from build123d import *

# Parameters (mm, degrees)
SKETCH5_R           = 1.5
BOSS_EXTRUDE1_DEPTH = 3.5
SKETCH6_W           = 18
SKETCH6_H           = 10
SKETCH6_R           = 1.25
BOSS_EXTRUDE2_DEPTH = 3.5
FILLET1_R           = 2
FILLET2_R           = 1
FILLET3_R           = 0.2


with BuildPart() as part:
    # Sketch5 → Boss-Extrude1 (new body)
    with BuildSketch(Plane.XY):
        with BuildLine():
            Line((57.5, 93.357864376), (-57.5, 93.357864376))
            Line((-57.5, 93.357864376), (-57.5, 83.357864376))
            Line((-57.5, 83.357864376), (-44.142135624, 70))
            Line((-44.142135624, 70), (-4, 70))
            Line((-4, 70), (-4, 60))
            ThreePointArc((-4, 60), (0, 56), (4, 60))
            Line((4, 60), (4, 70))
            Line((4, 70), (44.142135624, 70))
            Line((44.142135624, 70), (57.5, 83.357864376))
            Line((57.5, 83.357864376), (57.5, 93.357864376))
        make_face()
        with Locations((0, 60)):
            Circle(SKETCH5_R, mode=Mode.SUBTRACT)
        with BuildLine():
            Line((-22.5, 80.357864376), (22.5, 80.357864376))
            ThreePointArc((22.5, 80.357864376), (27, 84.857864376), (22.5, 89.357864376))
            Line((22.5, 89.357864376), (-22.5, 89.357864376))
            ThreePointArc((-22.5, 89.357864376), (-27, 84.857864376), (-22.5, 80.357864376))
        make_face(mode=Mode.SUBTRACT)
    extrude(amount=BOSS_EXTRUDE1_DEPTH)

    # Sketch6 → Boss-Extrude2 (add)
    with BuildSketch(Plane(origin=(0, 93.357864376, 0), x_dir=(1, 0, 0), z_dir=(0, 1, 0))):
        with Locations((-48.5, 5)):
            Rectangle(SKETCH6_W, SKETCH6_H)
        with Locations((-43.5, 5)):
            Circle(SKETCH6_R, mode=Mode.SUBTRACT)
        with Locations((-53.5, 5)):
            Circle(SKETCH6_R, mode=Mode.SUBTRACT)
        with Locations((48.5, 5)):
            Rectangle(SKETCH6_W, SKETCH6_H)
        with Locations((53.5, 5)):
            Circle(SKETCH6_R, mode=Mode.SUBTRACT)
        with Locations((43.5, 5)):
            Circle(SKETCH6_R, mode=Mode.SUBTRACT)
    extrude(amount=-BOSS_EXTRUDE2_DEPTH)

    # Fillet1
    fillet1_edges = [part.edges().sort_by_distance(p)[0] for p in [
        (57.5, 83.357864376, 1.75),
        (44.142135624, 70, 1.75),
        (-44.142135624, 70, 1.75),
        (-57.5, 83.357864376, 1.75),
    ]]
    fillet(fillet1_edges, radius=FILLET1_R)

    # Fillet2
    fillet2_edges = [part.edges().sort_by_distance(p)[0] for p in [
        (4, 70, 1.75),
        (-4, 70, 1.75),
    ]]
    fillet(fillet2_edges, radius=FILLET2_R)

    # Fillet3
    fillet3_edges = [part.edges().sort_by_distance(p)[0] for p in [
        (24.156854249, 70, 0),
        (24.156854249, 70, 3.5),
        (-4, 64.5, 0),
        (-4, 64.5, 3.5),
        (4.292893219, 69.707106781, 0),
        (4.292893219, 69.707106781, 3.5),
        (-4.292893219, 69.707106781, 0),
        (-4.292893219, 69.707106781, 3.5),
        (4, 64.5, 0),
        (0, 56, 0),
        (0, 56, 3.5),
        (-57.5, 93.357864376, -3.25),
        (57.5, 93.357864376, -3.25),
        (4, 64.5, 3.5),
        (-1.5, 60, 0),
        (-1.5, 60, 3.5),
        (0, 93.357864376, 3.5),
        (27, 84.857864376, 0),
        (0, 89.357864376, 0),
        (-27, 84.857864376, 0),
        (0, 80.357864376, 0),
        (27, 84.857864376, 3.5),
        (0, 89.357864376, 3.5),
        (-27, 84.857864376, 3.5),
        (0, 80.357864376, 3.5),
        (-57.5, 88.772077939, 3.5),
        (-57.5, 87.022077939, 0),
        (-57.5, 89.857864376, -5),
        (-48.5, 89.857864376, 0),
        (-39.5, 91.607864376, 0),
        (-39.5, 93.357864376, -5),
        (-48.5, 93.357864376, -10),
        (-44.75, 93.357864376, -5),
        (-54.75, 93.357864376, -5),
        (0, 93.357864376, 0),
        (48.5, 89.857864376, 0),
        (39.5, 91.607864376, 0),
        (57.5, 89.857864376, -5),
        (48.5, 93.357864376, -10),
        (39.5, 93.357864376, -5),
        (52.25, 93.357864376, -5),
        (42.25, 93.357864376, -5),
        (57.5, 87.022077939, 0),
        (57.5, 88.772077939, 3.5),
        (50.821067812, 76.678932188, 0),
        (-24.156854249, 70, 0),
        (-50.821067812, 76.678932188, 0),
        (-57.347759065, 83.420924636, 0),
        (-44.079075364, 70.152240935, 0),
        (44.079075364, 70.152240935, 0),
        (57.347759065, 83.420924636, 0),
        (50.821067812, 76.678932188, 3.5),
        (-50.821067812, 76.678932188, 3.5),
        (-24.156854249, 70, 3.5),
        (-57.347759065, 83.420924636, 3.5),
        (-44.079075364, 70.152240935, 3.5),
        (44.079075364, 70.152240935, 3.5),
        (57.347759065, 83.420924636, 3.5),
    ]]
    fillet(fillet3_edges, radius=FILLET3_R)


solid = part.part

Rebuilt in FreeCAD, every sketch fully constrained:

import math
import FreeCAD as App
import Part
import Sketcher


def edges_at(feature, points):
    """Names of the edges that pass closest to the given points."""
    edges = feature.Shape.Edges
    near = lambda p: min(range(len(edges)), key=lambda i: edges[i].distToShape(Part.Vertex(*p))[0])
    return sorted({f"Edge{near(p) + 1}" for p in points})

doc = App.newDocument("Part")
body = doc.addObject("PartDesign::Body", "Body")

# Sketch on XY plane
sketch1 = body.newObject("Sketcher::SketchObject", "Sketch")
sketch1.AttachmentSupport = (doc.getObject("XY_Plane"), [""])
sketch1.MapMode = "FlatFace"
sketch1.addGeometry(Part.LineSegment(App.Vector(57.5, 93.357864, 0), App.Vector(-57.5, 93.357864, 0)), False)
sketch1.addGeometry(Part.LineSegment(App.Vector(-57.5, 93.357864, 0), App.Vector(-57.5, 83.357864, 0)), False)
sketch1.addGeometry(Part.LineSegment(App.Vector(-57.5, 83.357864, 0), App.Vector(-44.142136, 70, 0)), False)
sketch1.addGeometry(Part.LineSegment(App.Vector(-44.142136, 70, 0), App.Vector(-4, 70, 0)), False)
sketch1.addGeometry(Part.LineSegment(App.Vector(-4, 70, 0), App.Vector(-4, 60, 0)), False)
sketch1.addGeometry(Part.ArcOfCircle(Part.Circle(App.Vector(0, 60, 0), App.Vector(0, 0, 1), 4), math.radians(180), math.radians(360)), False)
sketch1.addGeometry(Part.LineSegment(App.Vector(4, 60, 0), App.Vector(4, 70, 0)), False)
sketch1.addGeometry(Part.LineSegment(App.Vector(4, 70, 0), App.Vector(44.142136, 70, 0)), False)
sketch1.addGeometry(Part.LineSegment(App.Vector(44.142136, 70, 0), App.Vector(57.5, 83.357864, 0)), False)
sketch1.addGeometry(Part.LineSegment(App.Vector(57.5, 83.357864, 0), App.Vector(57.5, 93.357864, 0)), False)
sketch1.addGeometry(Part.Circle(App.Vector(0, 60, 0), App.Vector(0, 0, 1), 1.5), False)
sketch1.addGeometry(Part.LineSegment(App.Vector(22.5, 80.357864, 0), App.Vector(-22.5, 80.357864, 0)), False)
sketch1.addGeometry(Part.ArcOfCircle(Part.Circle(App.Vector(-22.5, 84.857864, 0), App.Vector(0, 0, 1), 4.5), math.radians(90), math.radians(270)), False)
sketch1.addGeometry(Part.LineSegment(App.Vector(-22.5, 89.357864, 0), App.Vector(22.5, 89.357864, 0)), False)
sketch1.addGeometry(Part.ArcOfCircle(Part.Circle(App.Vector(22.5, 84.857864, 0), App.Vector(0, 0, 1), 4.5), math.radians(-90), math.radians(90)), False)
sketch1.addConstraint(Sketcher.Constraint("Coincident", 0, 2, 1, 1))
sketch1.addConstraint(Sketcher.Constraint("Coincident", 1, 2, 2, 1))
sketch1.addConstraint(Sketcher.Constraint("Coincident", 2, 2, 3, 1))
sketch1.addConstraint(Sketcher.Constraint("Coincident", 3, 2, 4, 1))
sketch1.addConstraint(Sketcher.Constraint("Tangent", 4, 2, 5, 1))
sketch1.addConstraint(Sketcher.Constraint("Tangent", 5, 2, 6, 1))
sketch1.addConstraint(Sketcher.Constraint("Coincident", 6, 2, 7, 1))
sketch1.addConstraint(Sketcher.Constraint("Coincident", 7, 2, 8, 1))
sketch1.addConstraint(Sketcher.Constraint("Coincident", 8, 2, 9, 1))
sketch1.addConstraint(Sketcher.Constraint("Coincident", 9, 2, 0, 1))
sketch1.addConstraint(Sketcher.Constraint("Tangent", 11, 2, 12, 2))
sketch1.addConstraint(Sketcher.Constraint("Tangent", 12, 1, 13, 1))
sketch1.addConstraint(Sketcher.Constraint("Tangent", 13, 2, 14, 2))
sketch1.addConstraint(Sketcher.Constraint("Tangent", 14, 1, 11, 1))
sketch1.addConstraint(Sketcher.Constraint("Horizontal", 0))
sketch1.addConstraint(Sketcher.Constraint("Vertical", 1))
sketch1.addConstraint(Sketcher.Constraint("Horizontal", 3))
sketch1.addConstraint(Sketcher.Constraint("Vertical", 4))
sketch1.addConstraint(Sketcher.Constraint("Vertical", 6))
sketch1.addConstraint(Sketcher.Constraint("Horizontal", 7))
sketch1.addConstraint(Sketcher.Constraint("Vertical", 9))
sketch1.addConstraint(Sketcher.Constraint("Horizontal", 11))
sketch1.addConstraint(Sketcher.Constraint("Horizontal", 13))
sketch1.addConstraint(Sketcher.Constraint("Coincident", 10, 3, 5, 3))
sketch1.addConstraint(Sketcher.Constraint("Symmetric", 3, 2, 6, 2, -2))
sketch1.addConstraint(Sketcher.Constraint("Symmetric", 1, 2, 8, 2, -2))
sketch1.addConstraint(Sketcher.Constraint("Perpendicular", 2, 8))
sketch1.addConstraint(Sketcher.Constraint("Equal", 3, 7))
sketch1.addConstraint(Sketcher.Constraint("Equal", 1, 4))
sketch1.addConstraint(Sketcher.Constraint("Diameter", 10, 3.0))
sketch1.addConstraint(Sketcher.Constraint("Radius", 5, 4.0))
sketch1.addConstraint(Sketcher.Constraint("Radius", 12, 4.5))
sketch1.addConstraint(Sketcher.Constraint("DistanceX", 0, 2, 0, 1, 115.0))
sketch1.addConstraint(Sketcher.Constraint("DistanceX", 11, 2, 11, 1, 45.0))
sketch1.addConstraint(Sketcher.Constraint("DistanceY", 1, 2, 1, 1, 10.0))
sketch1.addConstraint(Sketcher.Constraint("DistanceY", -1, 1, 5, 3, 60.0))
sketch1.addConstraint(Sketcher.Constraint("DistanceX", 0, 2, 12, 3, 35.0))
sketch1.addConstraint(Sketcher.Constraint("DistanceY", 12, 3, 0, 2, 8.5))
sketch1.addConstraint(Sketcher.Constraint("DistanceX", 3, 1, 3, 2, 40.142136))
pad1 = body.newObject("PartDesign::Pad", "Pad")
pad1.Profile = sketch1
pad1.Length = 3.5

# Sketch on XZ plane
sketch2 = body.newObject("Sketcher::SketchObject", "Sketch001")
sketch2.AttachmentSupport = (doc.getObject("XZ_Plane"), [""])
sketch2.MapMode = "FlatFace"
sketch2.AttachmentOffset = App.Placement(App.Vector(0, 0, -93.357864), App.Rotation())
sketch2.addGeometry(Part.LineSegment(App.Vector(-57.5, -10, 0), App.Vector(-57.5, 0, 0)), False)
sketch2.addGeometry(Part.LineSegment(App.Vector(-57.5, 0, 0), App.Vector(-39.5, 0, 0)), False)
sketch2.addGeometry(Part.LineSegment(App.Vector(-39.5, 0, 0), App.Vector(-39.5, -10, 0)), False)
sketch2.addGeometry(Part.LineSegment(App.Vector(-39.5, -10, 0), App.Vector(-57.5, -10, 0)), False)
sketch2.addGeometry(Part.Circle(App.Vector(-53.5, -5, 0), App.Vector(0, 0, 1), 1.25), False)
sketch2.addGeometry(Part.Circle(App.Vector(-43.5, -5, 0), App.Vector(0, 0, 1), 1.25), False)
sketch2.addGeometry(Part.LineSegment(App.Vector(39.5, -10, 0), App.Vector(39.5, 0, 0)), False)
sketch2.addGeometry(Part.LineSegment(App.Vector(39.5, 0, 0), App.Vector(57.5, 0, 0)), False)
sketch2.addGeometry(Part.LineSegment(App.Vector(57.5, 0, 0), App.Vector(57.5, -10, 0)), False)
sketch2.addGeometry(Part.LineSegment(App.Vector(57.5, -10, 0), App.Vector(39.5, -10, 0)), False)
sketch2.addGeometry(Part.Circle(App.Vector(43.5, -5, 0), App.Vector(0, 0, 1), 1.25), False)
sketch2.addGeometry(Part.Circle(App.Vector(53.5, -5, 0), App.Vector(0, 0, 1), 1.25), False)
sketch2.addConstraint(Sketcher.Constraint("Coincident", 0, 2, 1, 1))
sketch2.addConstraint(Sketcher.Constraint("Coincident", 1, 2, 2, 1))
sketch2.addConstraint(Sketcher.Constraint("Coincident", 2, 2, 3, 1))
sketch2.addConstraint(Sketcher.Constraint("Coincident", 3, 2, 0, 1))
sketch2.addConstraint(Sketcher.Constraint("Coincident", 6, 2, 7, 1))
sketch2.addConstraint(Sketcher.Constraint("Coincident", 7, 2, 8, 1))
sketch2.addConstraint(Sketcher.Constraint("Coincident", 8, 2, 9, 1))
sketch2.addConstraint(Sketcher.Constraint("Coincident", 9, 2, 6, 1))
sketch2.addConstraint(Sketcher.Constraint("Vertical", 0))
sketch2.addConstraint(Sketcher.Constraint("Horizontal", 1))
sketch2.addConstraint(Sketcher.Constraint("Vertical", 2))
sketch2.addConstraint(Sketcher.Constraint("Horizontal", 3))
sketch2.addConstraint(Sketcher.Constraint("Vertical", 6))
sketch2.addConstraint(Sketcher.Constraint("Horizontal", 7))
sketch2.addConstraint(Sketcher.Constraint("Vertical", 8))
sketch2.addConstraint(Sketcher.Constraint("Horizontal", 9))
sketch2.addConstraint(Sketcher.Constraint("Equal", 4, 5))
sketch2.addConstraint(Sketcher.Constraint("Equal", 5, 10))
sketch2.addConstraint(Sketcher.Constraint("Equal", 10, 11))
sketch2.addConstraint(Sketcher.Constraint("Symmetric", 1, 2, 6, 2, -1, 1))
sketch2.addConstraint(Sketcher.Constraint("Symmetric", 5, 3, 10, 3, -2))
sketch2.addConstraint(Sketcher.Constraint("Symmetric", 4, 3, 11, 3, -2))
sketch2.addConstraint(Sketcher.Constraint("Symmetric", 0, 2, 7, 2, -2))
sketch2.addConstraint(Sketcher.Constraint("Horizontal", 4, 3, 5, 3))
sketch2.addConstraint(Sketcher.Constraint("Horizontal", 3, 2, 8, 2))
sketch2.addConstraint(Sketcher.Constraint("Diameter", 4, 2.5))
sketch2.addConstraint(Sketcher.Constraint("DistanceX", 1, 1, 1, 2, 18.0))
sketch2.addConstraint(Sketcher.Constraint("DistanceY", 0, 1, 0, 2, 10.0))
sketch2.addConstraint(Sketcher.Constraint("DistanceY", 4, 3, -1, 1, 5.0))
sketch2.addConstraint(Sketcher.Constraint("DistanceX", 4, 3, 5, 3, 10.0))
sketch2.addConstraint(Sketcher.Constraint("DistanceX", 5, 3, 10, 3, 87.0))
sketch2.addConstraint(Sketcher.Constraint("DistanceX", 0, 2, 4, 3, 4.0))
pad2 = body.newObject("PartDesign::Pad", "Pad001")
pad2.Profile = sketch2
pad2.Length = 3.5
doc.recompute()

fillet = body.newObject("PartDesign::Fillet", "Fillet")
fillet.Base = (pad2, edges_at(pad2, [
    (57.5, 83.358, 1.75),
    (44.142, 70, 1.75),
    (-44.142, 70, 1.75),
    (-57.5, 83.358, 1.75),
]))
fillet.Radius = 2
doc.recompute()

fillet2 = body.newObject("PartDesign::Fillet", "Fillet001")
fillet2.Base = (fillet, edges_at(fillet, [(4, 70, 1.75), (-4, 70, 1.75)]))
fillet2.Radius = 1
doc.recompute()

fillet3 = body.newObject("PartDesign::Fillet", "Fillet002")
fillet3.Base = (fillet2, edges_at(fillet2, [
    (24.157, 70, 0),
    (24.157, 70, 3.5),
    (-4, 64.5, 0),
    (-4, 64.5, 3.5),
    (4.293, 69.707, 0),
    (4.293, 69.707, 3.5),
    (-4.293, 69.707, 0),
    (-4.293, 69.707, 3.5),
    (4, 64.5, 0),
    (0, 56, 0),
    (0, 56, 3.5),
    (-57.5, 93.358, -3.25),
    (57.5, 93.358, -3.25),
    (4, 64.5, 3.5),
    (-1.5, 60, 0),
    (-1.5, 60, 3.5),
    (0, 93.358, 3.5),
    (27, 84.858, 0),
    (0, 89.358, 0),
    (-27, 84.858, 0),
    (0, 80.358, 0),
    (27, 84.858, 3.5),
    (0, 89.358, 3.5),
    (-27, 84.858, 3.5),
    (0, 80.358, 3.5),
    (-57.5, 88.772, 3.5),
    (-57.5, 87.022, 0),
    (-57.5, 89.858, -5),
    (-48.5, 89.858, 0),
    (-39.5, 91.608, 0),
    (-39.5, 93.358, -5),
    (-48.5, 93.358, -10),
    (-44.75, 93.358, -5),
    (-54.75, 93.358, -5),
    (0, 93.358, 0),
    (48.5, 89.858, 0),
    (39.5, 91.608, 0),
    (57.5, 89.858, -5),
    (48.5, 93.358, -10),
    (39.5, 93.358, -5),
    (52.25, 93.358, -5),
    (42.25, 93.358, -5),
    (57.5, 87.022, 0),
    (57.5, 88.772, 3.5),
    (50.821, 76.679, 0),
    (-24.157, 70, 0),
    (-50.821, 76.679, 0),
    (-57.348, 83.421, 0),
    (-44.079, 70.152, 0),
    (44.079, 70.152, 0),
    (57.348, 83.421, 0),
    (50.821, 76.679, 3.5),
    (-50.821, 76.679, 3.5),
    (-24.157, 70, 3.5),
    (-57.348, 83.421, 3.5),
    (-44.079, 70.152, 3.5),
    (44.079, 70.152, 3.5),
    (57.348, 83.421, 3.5),
]))
fillet3.Radius = 0.2

doc.recompute()
